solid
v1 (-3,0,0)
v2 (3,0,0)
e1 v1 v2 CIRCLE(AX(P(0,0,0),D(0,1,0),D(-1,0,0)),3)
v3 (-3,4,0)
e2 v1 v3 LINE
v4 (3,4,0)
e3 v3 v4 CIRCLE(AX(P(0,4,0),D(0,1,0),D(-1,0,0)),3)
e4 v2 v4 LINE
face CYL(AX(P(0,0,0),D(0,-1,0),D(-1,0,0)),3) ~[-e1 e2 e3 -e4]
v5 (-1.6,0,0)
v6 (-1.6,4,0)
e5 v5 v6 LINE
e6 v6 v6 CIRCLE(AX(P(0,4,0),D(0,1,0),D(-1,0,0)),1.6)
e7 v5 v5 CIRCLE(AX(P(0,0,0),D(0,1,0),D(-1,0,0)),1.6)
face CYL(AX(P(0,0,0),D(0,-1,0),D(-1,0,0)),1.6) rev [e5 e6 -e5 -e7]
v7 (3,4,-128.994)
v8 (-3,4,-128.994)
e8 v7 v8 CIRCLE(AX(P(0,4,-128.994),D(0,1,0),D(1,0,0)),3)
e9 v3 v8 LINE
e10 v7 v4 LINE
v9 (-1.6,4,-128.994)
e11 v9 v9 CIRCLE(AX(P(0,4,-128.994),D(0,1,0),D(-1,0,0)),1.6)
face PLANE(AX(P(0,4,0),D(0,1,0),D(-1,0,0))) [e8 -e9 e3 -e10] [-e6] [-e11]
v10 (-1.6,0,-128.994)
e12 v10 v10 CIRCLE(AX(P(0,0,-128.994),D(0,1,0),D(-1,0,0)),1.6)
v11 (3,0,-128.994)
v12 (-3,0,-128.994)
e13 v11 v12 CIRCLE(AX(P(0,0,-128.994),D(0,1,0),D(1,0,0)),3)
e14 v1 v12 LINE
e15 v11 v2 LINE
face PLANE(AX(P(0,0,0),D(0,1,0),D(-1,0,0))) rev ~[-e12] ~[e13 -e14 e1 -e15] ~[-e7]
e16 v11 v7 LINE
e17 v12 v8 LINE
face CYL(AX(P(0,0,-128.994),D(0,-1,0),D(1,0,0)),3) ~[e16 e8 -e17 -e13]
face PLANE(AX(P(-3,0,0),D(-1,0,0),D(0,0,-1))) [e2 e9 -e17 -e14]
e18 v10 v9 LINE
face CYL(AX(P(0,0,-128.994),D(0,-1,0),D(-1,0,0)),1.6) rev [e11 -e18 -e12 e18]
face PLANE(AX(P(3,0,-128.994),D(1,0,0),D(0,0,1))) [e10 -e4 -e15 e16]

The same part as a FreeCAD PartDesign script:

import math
import FreeCAD as App
import Part
import Sketcher

doc = App.newDocument("Part")
params = doc.addObject("Spreadsheet::Sheet", "Params")
for row, (alias, value) in enumerate([
    ("sketch1_radius", "3 mm"),
    ("sketch1_diameter", "3.2 mm"),
    ("pad1_length", "4 mm"),
], start=1):
    params.set(f"A{row}", alias)
    params.set(f"B{row}", "=" + value)
    params.setAlias(f"B{row}", alias)

body = doc.addObject("PartDesign::Body", "Body")

sketch1 = body.newObject("Sketcher::SketchObject", "Sketch")
sketch1.AttachmentSupport = (doc.getObject("XZ_Plane"), [""])
sketch1.MapMode = "FlatFace"
sketch1.addGeometry([
    Part.LineSegment(App.Vector(-3, -129, 0), App.Vector(-3, 0, 0)),
    Part.ArcOfCircle(Part.Circle(App.Vector(0, 0, 0), App.Vector(0, 0, 1), 3), math.radians(0), math.radians(180)),
    Part.LineSegment(App.Vector(3, 0, 0), App.Vector(3, -129, 0)),
    Part.ArcOfCircle(Part.Circle(App.Vector(0, -129, 0), App.Vector(0, 0, 1), 3), math.radians(180), math.radians(360)),
    Part.Circle(App.Vector(0, -129, 0), App.Vector(0, 0, 1), 1.6),
    Part.Circle(App.Vector(0, 0, 0), App.Vector(0, 0, 1), 1.6),
], False)
sketch1.addConstraint([
    Sketcher.Constraint("Tangent", 0, 2, 1, 2),
    Sketcher.Constraint("Tangent", 1, 1, 2, 1),
    Sketcher.Constraint("Tangent", 2, 2, 3, 2),
    Sketcher.Constraint("Tangent", 3, 1, 0, 1),
    Sketcher.Constraint("Vertical", 0),
    Sketcher.Constraint("Vertical", 2),
    Sketcher.Constraint("Coincident", 1, 3, -1, 1),
    Sketcher.Constraint("Coincident", 5, 3, -1, 1),
    Sketcher.Constraint("Coincident", 4, 3, 3, 3),
    Sketcher.Constraint("Equal", 4, 5),
    Sketcher.Constraint("Radius", 1, 3.0),
    Sketcher.Constraint("Diameter", 4, 3.2),
    Sketcher.Constraint("DistanceY", 0, 1, 0, 2, 128.994),
])
sketch1.setExpression("Constraints[10]", "Params.sketch1_radius")
sketch1.setExpression("Constraints[11]", "Params.sketch1_diameter")
pad1 = body.newObject("PartDesign::Pad", "Pad")
pad1.Profile = sketch1
pad1.setExpression("Length", "Params.pad1_length")
pad1.Reversed = True

doc.recompute()
